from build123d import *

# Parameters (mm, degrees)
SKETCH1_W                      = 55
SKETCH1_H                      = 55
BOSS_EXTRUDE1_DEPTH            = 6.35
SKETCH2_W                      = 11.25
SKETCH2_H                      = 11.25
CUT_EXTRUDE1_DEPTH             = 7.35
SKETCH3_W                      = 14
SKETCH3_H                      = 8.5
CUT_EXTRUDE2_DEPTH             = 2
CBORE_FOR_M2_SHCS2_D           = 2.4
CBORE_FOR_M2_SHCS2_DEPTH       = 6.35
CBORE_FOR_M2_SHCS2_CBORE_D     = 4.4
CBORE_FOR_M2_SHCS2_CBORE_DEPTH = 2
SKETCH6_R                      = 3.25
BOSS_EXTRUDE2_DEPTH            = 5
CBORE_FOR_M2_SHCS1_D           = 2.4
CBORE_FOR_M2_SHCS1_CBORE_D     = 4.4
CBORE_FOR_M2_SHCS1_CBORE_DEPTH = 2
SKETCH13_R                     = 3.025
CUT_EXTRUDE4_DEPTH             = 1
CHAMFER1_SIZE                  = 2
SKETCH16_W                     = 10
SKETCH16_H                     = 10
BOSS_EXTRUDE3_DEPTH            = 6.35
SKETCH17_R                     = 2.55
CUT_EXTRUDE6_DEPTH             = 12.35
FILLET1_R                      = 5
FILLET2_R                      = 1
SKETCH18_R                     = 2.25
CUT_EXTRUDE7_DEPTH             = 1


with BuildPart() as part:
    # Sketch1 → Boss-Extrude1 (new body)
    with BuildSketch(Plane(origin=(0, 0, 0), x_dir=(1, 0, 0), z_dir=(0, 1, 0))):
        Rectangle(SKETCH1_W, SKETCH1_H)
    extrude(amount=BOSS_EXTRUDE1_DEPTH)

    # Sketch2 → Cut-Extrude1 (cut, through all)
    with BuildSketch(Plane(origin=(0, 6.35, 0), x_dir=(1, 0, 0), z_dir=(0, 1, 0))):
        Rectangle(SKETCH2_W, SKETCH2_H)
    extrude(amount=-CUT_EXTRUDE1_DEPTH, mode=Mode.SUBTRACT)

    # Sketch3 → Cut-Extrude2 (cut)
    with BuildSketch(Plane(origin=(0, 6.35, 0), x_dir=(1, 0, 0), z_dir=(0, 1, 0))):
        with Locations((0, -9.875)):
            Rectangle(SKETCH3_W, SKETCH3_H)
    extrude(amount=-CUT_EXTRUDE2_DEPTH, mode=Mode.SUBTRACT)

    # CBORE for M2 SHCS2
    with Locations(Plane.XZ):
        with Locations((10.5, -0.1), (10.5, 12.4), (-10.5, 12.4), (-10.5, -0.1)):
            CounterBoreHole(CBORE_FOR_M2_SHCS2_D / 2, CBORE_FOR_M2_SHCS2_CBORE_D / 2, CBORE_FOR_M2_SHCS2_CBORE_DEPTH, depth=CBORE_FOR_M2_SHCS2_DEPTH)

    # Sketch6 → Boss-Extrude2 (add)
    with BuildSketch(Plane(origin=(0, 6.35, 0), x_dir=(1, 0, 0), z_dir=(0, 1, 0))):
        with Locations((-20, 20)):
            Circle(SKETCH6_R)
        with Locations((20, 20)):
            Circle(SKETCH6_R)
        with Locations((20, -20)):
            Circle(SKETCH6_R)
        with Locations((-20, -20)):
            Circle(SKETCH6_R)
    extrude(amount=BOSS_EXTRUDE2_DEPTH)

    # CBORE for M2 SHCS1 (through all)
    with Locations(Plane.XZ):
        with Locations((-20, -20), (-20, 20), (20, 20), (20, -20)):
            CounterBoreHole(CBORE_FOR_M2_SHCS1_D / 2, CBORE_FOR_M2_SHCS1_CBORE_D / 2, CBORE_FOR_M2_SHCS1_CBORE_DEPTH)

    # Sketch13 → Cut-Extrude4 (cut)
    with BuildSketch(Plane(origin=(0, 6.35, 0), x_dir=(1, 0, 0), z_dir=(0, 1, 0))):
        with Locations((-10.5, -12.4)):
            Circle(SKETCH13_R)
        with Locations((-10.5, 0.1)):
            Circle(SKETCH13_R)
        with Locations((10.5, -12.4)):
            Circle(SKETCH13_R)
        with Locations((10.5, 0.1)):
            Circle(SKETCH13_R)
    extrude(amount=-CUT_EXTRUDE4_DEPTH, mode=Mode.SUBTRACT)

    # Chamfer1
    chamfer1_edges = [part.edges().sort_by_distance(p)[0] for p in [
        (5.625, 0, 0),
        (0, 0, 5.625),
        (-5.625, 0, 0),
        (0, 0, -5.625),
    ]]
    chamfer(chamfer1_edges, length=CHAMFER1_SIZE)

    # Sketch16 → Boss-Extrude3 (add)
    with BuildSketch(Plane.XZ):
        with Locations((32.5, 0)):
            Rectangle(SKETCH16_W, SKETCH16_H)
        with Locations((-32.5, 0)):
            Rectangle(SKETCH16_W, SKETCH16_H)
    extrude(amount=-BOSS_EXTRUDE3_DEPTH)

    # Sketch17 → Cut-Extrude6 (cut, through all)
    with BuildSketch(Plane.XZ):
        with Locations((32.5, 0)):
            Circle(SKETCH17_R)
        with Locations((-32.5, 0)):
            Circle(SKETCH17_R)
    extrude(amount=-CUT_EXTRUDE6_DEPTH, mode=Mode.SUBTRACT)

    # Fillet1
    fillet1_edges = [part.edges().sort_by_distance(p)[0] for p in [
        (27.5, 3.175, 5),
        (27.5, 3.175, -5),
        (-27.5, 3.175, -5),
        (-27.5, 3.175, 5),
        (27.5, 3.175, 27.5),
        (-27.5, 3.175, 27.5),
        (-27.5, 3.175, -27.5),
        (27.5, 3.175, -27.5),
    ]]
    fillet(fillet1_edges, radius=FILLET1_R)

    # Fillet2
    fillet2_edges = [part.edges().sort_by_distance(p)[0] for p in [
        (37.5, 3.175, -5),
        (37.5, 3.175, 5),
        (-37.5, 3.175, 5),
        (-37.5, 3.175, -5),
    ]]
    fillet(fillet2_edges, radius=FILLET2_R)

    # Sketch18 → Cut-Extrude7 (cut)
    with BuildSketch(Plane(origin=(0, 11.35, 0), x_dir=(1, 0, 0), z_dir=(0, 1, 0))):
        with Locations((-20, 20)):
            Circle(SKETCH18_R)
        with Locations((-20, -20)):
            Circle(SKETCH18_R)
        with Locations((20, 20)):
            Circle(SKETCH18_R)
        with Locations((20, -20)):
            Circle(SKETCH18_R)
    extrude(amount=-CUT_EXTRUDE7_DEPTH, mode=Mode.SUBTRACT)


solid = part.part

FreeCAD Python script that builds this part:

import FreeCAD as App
import Part
import Sketcher
from FreeCAD import Vector
Q = App.Units.Quantity


def edges_at(feature, points):
    """Names of the edges that pass closest to the given points."""
    edges = feature.Shape.Edges
    near = lambda p: min(range(len(edges)), key=lambda i: edges[i].distToShape(Part.Vertex(*p))[0])
    return sorted({f"Edge{near(p) + 1}" for p in points})

doc = App.newDocument("Part")
params = doc.addObject("Spreadsheet::Sheet", "Params")
for row, (alias, value) in enumerate([
    ("sketch1_width", "55 mm"),
    ("pad1_length", "6.35 mm"),
    ("sketch2_width", "11.25 mm"),
    ("sketch3_width", "14 mm"),
    ("sketch3_height", "8.5 mm"),
    ("pocket2_length", "2 mm"),
    ("sketch4_diameter", "2.4 mm"),
    ("hole_diameter", "2.4 mm"),
    ("hole_depth", "6.35 mm"),
    ("hole_cbore_diameter", "4.4 mm"),
    ("hole_cbore_depth", "2 mm"),
    ("sketch5_diameter", "6.5 mm"),
    ("pad2_length", "5 mm"),
    ("sketch6_diameter", "2.4 mm"),
    ("hole2_diameter", "2.4 mm"),
    ("hole2_cbore_diameter", "4.4 mm"),
    ("hole2_cbore_depth", "2 mm"),
    ("sketch7_diameter", "6.05 mm"),
    ("pocket3_length", "1 mm"),
    ("chamfer_size", "2 mm"),
    ("sketch8_width", "10 mm"),
    ("pad3_length", "6.35 mm"),
    ("sketch9_diameter", "5.1 mm"),
    ("fillet_radius", "5 mm"),
    ("fillet2_radius", "1 mm"),
    ("sketch10_diameter", "4.5 mm"),
    ("pocket5_length", "1 mm"),
], start=1):
    params.set(f"A{row}", alias)
    params.set(f"B{row}", "=" + value)
    params.setAlias(f"B{row}", alias)

body = doc.addObject("PartDesign::Body", "Body")

# Sketch on XZ plane
sketch1 = body.newObject("Sketcher::SketchObject", "Sketch")
sketch1.AttachmentSupport = (doc.getObject("XZ_Plane"), [""])
sketch1.MapMode = "FlatFace"
sketch1.addGeometry(Part.LineSegment(Vector(-27.5, -27.5, 0), Vector(-27.5, 27.5, 0)), False)
sketch1.addGeometry(Part.LineSegment(Vector(-27.5, 27.5, 0), Vector(27.5, 27.5, 0)), False)
sketch1.addGeometry(Part.LineSegment(Vector(27.5, 27.5, 0), Vector(27.5, -27.5, 0)), False)
sketch1.addGeometry(Part.LineSegment(Vector(27.5, -27.5, 0), Vector(-27.5, -27.5, 0)), False)
sketch1.addConstraint(Sketcher.Constraint("Coincident", 0, 2, 1, 1))
sketch1.addConstraint(Sketcher.Constraint("Coincident", 1, 2, 2, 1))
sketch1.addConstraint(Sketcher.Constraint("Coincident", 2, 2, 3, 1))
sketch1.addConstraint(Sketcher.Constraint("Coincident", 3, 2, 0, 1))
sketch1.addConstraint(Sketcher.Constraint("Vertical", 0))
sketch1.addConstraint(Sketcher.Constraint("Horizontal", 1))
sketch1.addConstraint(Sketcher.Constraint("Vertical", 2))
sketch1.addConstraint(Sketcher.Constraint("Horizontal", 3))
sketch1.addConstraint(Sketcher.Constraint("Symmetric", 0, 2, 2, 2, -1, 1))
sketch1.addConstraint(Sketcher.Constraint("Equal", 3, 0))
sketch1.addConstraint(Sketcher.Constraint("DistanceX", 1, 1, 1, 2, Q("55 mm")))
sketch1.setExpression("Constraints[10]", "Params.sketch1_width")
pad1 = body.newObject("PartDesign::Pad", "Pad")
pad1.Profile = sketch1
pad1.setExpression("Length", "Params.pad1_length")
pad1.Reversed = True

# Sketch on XZ plane
sketch2 = body.newObject("Sketcher::SketchObject", "Sketch001")
sketch2.AttachmentSupport = (doc.getObject("XZ_Plane"), [""])
sketch2.MapMode = "FlatFace"
sketch2.AttachmentOffset = App.Placement(Vector(0, 0, -6.35), App.Rotation())
sketch2.addGeometry(Part.LineSegment(Vector(-5.625, -5.625, 0), Vector(-5.625, 5.625, 0)), False)
sketch2.addGeometry(Part.LineSegment(Vector(-5.625, 5.625, 0), Vector(5.625, 5.625, 0)), False)
sketch2.addGeometry(Part.LineSegment(Vector(5.625, 5.625, 0), Vector(5.625, -5.625, 0)), False)
sketch2.addGeometry(Part.LineSegment(Vector(5.625, -5.625, 0), Vector(-5.625, -5.625, 0)), False)
sketch2.addConstraint(Sketcher.Constraint("Coincident", 0, 2, 1, 1))
sketch2.addConstraint(Sketcher.Constraint("Coincident", 1, 2, 2, 1))
sketch2.addConstraint(Sketcher.Constraint("Coincident", 2, 2, 3, 1))
sketch2.addConstraint(Sketcher.Constraint("Coincident", 3, 2, 0, 1))
sketch2.addConstraint(Sketcher.Constraint("Vertical", 0))
sketch2.addConstraint(Sketcher.Constraint("Horizontal", 1))
sketch2.addConstraint(Sketcher.Constraint("Vertical", 2))
sketch2.addConstraint(Sketcher.Constraint("Horizontal", 3))
sketch2.addConstraint(Sketcher.Constraint("Symmetric", 0, 2, 2, 2, -1, 1))
sketch2.addConstraint(Sketcher.Constraint("Equal", 3, 0))
sketch2.addConstraint(Sketcher.Constraint("DistanceX", 1, 1, 1, 2, Q("11.25 mm")))
sketch2.setExpression("Constraints[10]", "Params.sketch2_width")
pocket1 = body.newObject("PartDesign::Pocket", "Pocket")
pocket1.Profile = sketch2
pocket1.Type = "ThroughAll"
pocket1.Reversed = True

# Sketch on XZ plane
sketch3 = body.newObject("Sketcher::SketchObject", "Sketch002")
sketch3.AttachmentSupport = (doc.getObject("XZ_Plane"), [""])
sketch3.MapMode = "FlatFace"
sketch3.AttachmentOffset = App.Placement(Vector(0, 0, -6.35), App.Rotation())
sketch3.addGeometry(Part.LineSegment(Vector(-7, 5.625, 0), Vector(-7, 14.125, 0)), False)
sketch3.addGeometry(Part.LineSegment(Vector(-7, 14.125, 0), Vector(7, 14.125, 0)), False)
sketch3.addGeometry(Part.LineSegment(Vector(7, 14.125, 0), Vector(7, 5.625, 0)), False)
sketch3.addGeometry(Part.LineSegment(Vector(7, 5.625, 0), Vector(-7, 5.625, 0)), False)
sketch3.addConstraint(Sketcher.Constraint("Coincident", 0, 2, 1, 1))
sketch3.addConstraint(Sketcher.Constraint("Coincident", 1, 2, 2, 1))
sketch3.addConstraint(Sketcher.Constraint("Coincident", 2, 2, 3, 1))
sketch3.addConstraint(Sketcher.Constraint("Coincident", 3, 2, 0, 1))
sketch3.addConstraint(Sketcher.Constraint("Vertical", 0))
sketch3.addConstraint(Sketcher.Constraint("Horizontal", 1))
sketch3.addConstraint(Sketcher.Constraint("Vertical", 2))
sketch3.addConstraint(Sketcher.Constraint("Horizontal", 3))
sketch3.addConstraint(Sketcher.Constraint("DistanceX", 1, 1, 1, 2, Q("14 mm")))
sketch3.addConstraint(Sketcher.Constraint("DistanceY", 0, 1, 0, 2, Q("8.5 mm")))
sketch3.addConstraint(Sketcher.Constraint("DistanceX", 0, 2, -1, 1, Q("7 mm")))
sketch3.addConstraint(Sketcher.Constraint("DistanceY", -1, 1, 0, 2, Q("14.125 mm")))
sketch3.setExpression("Constraints[8]", "Params.sketch3_width")
sketch3.setExpression("Constraints[9]", "Params.sketch3_height")
pocket2 = body.newObject("PartDesign::Pocket", "Pocket001")
pocket2.Profile = sketch3
pocket2.setExpression("Length", "Params.pocket2_length")
pocket2.Reversed = True

# Sketch on XZ plane
sketch4 = body.newObject("Sketcher::SketchObject", "Sketch003")
sketch4.AttachmentSupport = (doc.getObject("XZ_Plane"), [""])
sketch4.MapMode = "FlatFace"
sketch4.addGeometry(Part.Circle(Vector(10.5, -0.1, 0), Vector(0, 0, 1), 1.2), False)
sketch4.addGeometry(Part.Circle(Vector(10.5, 12.4, 0), Vector(0, 0, 1), 1.2), False)
sketch4.addGeometry(Part.Circle(Vector(-10.5, 12.4, 0), Vector(0, 0, 1), 1.2), False)
sketch4.addGeometry(Part.Circle(Vector(-10.5, -0.1, 0), Vector(0, 0, 1), 1.2), False)
sketch4.addConstraint(Sketcher.Constraint("Equal", 0, 1))
sketch4.addConstraint(Sketcher.Constraint("Equal", 1, 2))
sketch4.addConstraint(Sketcher.Constraint("Equal", 2, 3))
sketch4.addConstraint(Sketcher.Constraint("Symmetric", 1, 3, 2, 3, -2))
sketch4.addConstraint(Sketcher.Constraint("Symmetric", 0, 3, 3, 3, -2))
sketch4.addConstraint(Sketcher.Constraint("Vertical", 0, 3, 1, 3))
sketch4.addConstraint(Sketcher.Constraint("Diameter", 0, Q("2.4 mm")))
sketch4.addConstraint(Sketcher.Constraint("DistanceX", 2, 3, 1, 3, Q("21 mm")))
sketch4.addConstraint(Sketcher.Constraint("DistanceY", 0, 3, -1, 1, Q("0.1 mm")))
sketch4.addConstraint(Sketcher.Constraint("DistanceY", -1, 1, 1, 3, Q("12.4 mm")))
sketch4.setExpression("Constraints[6]", "Params.sketch4_diameter")
doc.recompute()
hole = body.newObject("PartDesign::Hole", "Hole")
hole.Profile = sketch4
hole.ThreadType = "None"
hole.setExpression("Diameter", "Params.hole_diameter")
hole.DepthType = "Dimension"
hole.setExpression("Depth", "Params.hole_depth")
hole.DrillPoint = "Flat"
hole.HoleCutType = "Counterbore"
hole.setExpression("HoleCutDiameter", "Params.hole_cbore_diameter")
hole.setExpression("HoleCutDepth", "Params.hole_cbore_depth")

# Sketch on XZ plane
sketch5 = body.newObject("Sketcher::SketchObject", "Sketch004")
sketch5.AttachmentSupport = (doc.getObject("XZ_Plane"), [""])
sketch5.MapMode = "FlatFace"
sketch5.AttachmentOffset = App.Placement(Vector(0, 0, -6.35), App.Rotation())
sketch5.addGeometry(Part.Circle(Vector(-20, -20, 0), Vector(0, 0, 1), 3.25), False)
sketch5.addGeometry(Part.Circle(Vector(20, -20, 0), Vector(0, 0, 1), 3.25), False)
sketch5.addGeometry(Part.Circle(Vector(20, 20, 0), Vector(0, 0, 1), 3.25), False)
sketch5.addGeometry(Part.Circle(Vector(-20, 20, 0), Vector(0, 0, 1), 3.25), False)
sketch5.addConstraint(Sketcher.Constraint("Equal", 0, 1))
sketch5.addConstraint(Sketcher.Constraint("Equal", 1, 2))
sketch5.addConstraint(Sketcher.Constraint("Equal", 2, 3))
sketch5.addConstraint(Sketcher.Constraint("Symmetric", 0, 3, 2, 3, -1, 1))
sketch5.addConstraint(Sketcher.Constraint("Symmetric", 1, 3, 3, 3, -1, 1))
sketch5.addConstraint(Sketcher.Constraint("Symmetric", 0, 3, 1, 3, -2))
sketch5.addConstraint(Sketcher.Constraint("Diameter", 0, Q("6.5 mm")))
sketch5.addConstraint(Sketcher.Constraint("DistanceX", 0, 3, -1, 1, Q("20 mm")))
sketch5.addConstraint(Sketcher.Constraint("DistanceY", 0, 3, -1, 1, Q("20 mm")))
sketch5.setExpression("Constraints[6]", "Params.sketch5_diameter")
pad2 = body.newObject("PartDesign::Pad", "Pad001")
pad2.Profile = sketch5
pad2.setExpression("Length", "Params.pad2_length")
pad2.Reversed = True

# Sketch on XZ plane
sketch6 = body.newObject("Sketcher::SketchObject", "Sketch005")
sketch6.AttachmentSupport = (doc.getObject("XZ_Plane"), [""])
sketch6.MapMode = "FlatFace"
sketch6.addGeometry(Part.Circle(Vector(-20, -20, 0), Vector(0, 0, 1), 1.2), False)
sketch6.addGeometry(Part.Circle(Vector(-20, 20, 0), Vector(0, 0, 1), 1.2), False)
sketch6.addGeometry(Part.Circle(Vector(20, 20, 0), Vector(0, 0, 1), 1.2), False)
sketch6.addGeometry(Part.Circle(Vector(20, -20, 0), Vector(0, 0, 1), 1.2), False)
sketch6.addConstraint(Sketcher.Constraint("Equal", 0, 1))
sketch6.addConstraint(Sketcher.Constraint("Equal", 1, 2))
sketch6.addConstraint(Sketcher.Constraint("Equal", 2, 3))
sketch6.addConstraint(Sketcher.Constraint("Symmetric", 0, 3, 2, 3, -1, 1))
sketch6.addConstraint(Sketcher.Constraint("Symmetric", 1, 3, 3, 3, -1, 1))
sketch6.addConstraint(Sketcher.Constraint("Symmetric", 1, 3, 2, 3, -2))
sketch6.addConstraint(Sketcher.Constraint("Diameter", 0, Q("2.4 mm")))
sketch6.addConstraint(Sketcher.Constraint("DistanceX", 0, 3, -1, 1, Q("20 mm")))
sketch6.addConstraint(Sketcher.Constraint("DistanceY", 0, 3, -1, 1, Q("20 mm")))
sketch6.setExpression("Constraints[6]", "Params.sketch6_diameter")
doc.recompute()
hole2 = body.newObject("PartDesign::Hole", "Hole001")
hole2.Profile = sketch6
hole2.ThreadType = "None"
hole2.setExpression("Diameter", "Params.hole2_diameter")
hole2.DepthType = "ThroughAll"
hole2.HoleCutType = "Counterbore"
hole2.setExpression("HoleCutDiameter", "Params.hole2_cbore_diameter")
hole2.setExpression("HoleCutDepth", "Params.hole2_cbore_depth")

# Sketch on XZ plane
sketch7 = body.newObject("Sketcher::SketchObject", "Sketch006")
sketch7.AttachmentSupport = (doc.getObject("XZ_Plane"), [""])
sketch7.MapMode = "FlatFace"
sketch7.AttachmentOffset = App.Placement(Vector(0, 0, -6.35), App.Rotation())
sketch7.addGeometry(Part.Circle(Vector(-10.5, 12.4, 0), Vector(0, 0, 1), 3.025), False)
sketch7.addGeometry(Part.Circle(Vector(-10.5, -0.1, 0), Vector(0, 0, 1), 3.025), False)
sketch7.addGeometry(Part.Circle(Vector(10.5, 12.4, 0), Vector(0, 0, 1), 3.025), False)
sketch7.addGeometry(Part.Circle(Vector(10.5, -0.1, 0), Vector(0, 0, 1), 3.025), False)
sketch7.addConstraint(Sketcher.Constraint("Equal", 0, 1))
sketch7.addConstraint(Sketcher.Constraint("Equal", 1, 2))
sketch7.addConstraint(Sketcher.Constraint("Equal", 2, 3))
sketch7.addConstraint(Sketcher.Constraint("Symmetric", 0, 3, 2, 3, -2))
sketch7.addConstraint(Sketcher.Constraint("Symmetric", 1, 3, 3, 3, -2))
sketch7.addConstraint(Sketcher.Constraint("Vertical", 0, 3, 1, 3))
sketch7.addConstraint(Sketcher.Constraint("Diameter", 0, Q("6.05 mm")))
sketch7.addConstraint(Sketcher.Constraint("DistanceX", 0, 3, 2, 3, Q("21 mm")))
sketch7.addConstraint(Sketcher.Constraint("DistanceY", -1, 1, 0, 3, Q("12.4 mm")))
sketch7.addConstraint(Sketcher.Constraint("DistanceY", 1, 3, -1, 1, Q("0.1 mm")))
sketch7.setExpression("Constraints[6]", "Params.sketch7_diameter")
pocket3 = body.newObject("PartDesign::Pocket", "Pocket002")
pocket3.Profile = sketch7
pocket3.setExpression("Length", "Params.pocket3_length")
pocket3.Reversed = True
doc.recompute()

chamfer = body.newObject("PartDesign::Chamfer", "Chamfer")
chamfer.Base = (pocket3, edges_at(pocket3, [
    (5.625, 0, 0),
    (0, 0, 5.625),
    (-5.625, 0, 0),
    (0, 0, -5.625),
]))
chamfer.setExpression("Size", "Params.chamfer_size")

# Sketch on XZ plane
sketch8 = body.newObject("Sketcher::SketchObject", "Sketch007")
sketch8.AttachmentSupport = (doc.getObject("XZ_Plane"), [""])
sketch8.MapMode = "FlatFace"
sketch8.addGeometry(Part.LineSegment(Vector(27.5, 5, 0), Vector(27.5, -5, 0)), False)
sketch8.addGeometry(Part.LineSegment(Vector(27.5, -5, 0), Vector(37.5, -5, 0)), False)
sketch8.addGeometry(Part.LineSegment(Vector(37.5, -5, 0), Vector(37.5, 5, 0)), False)
sketch8.addGeometry(Part.LineSegment(Vector(37.5, 5, 0), Vector(27.5, 5, 0)), False)
sketch8.addGeometry(Part.LineSegment(Vector(-37.5, 5, 0), Vector(-37.5, -5, 0)), False)
sketch8.addGeometry(Part.LineSegment(Vector(-37.5, -5, 0), Vector(-27.5, -5, 0)), False)
sketch8.addGeometry(Part.LineSegment(Vector(-27.5, -5, 0), Vector(-27.5, 5, 0)), False)
sketch8.addGeometry(Part.LineSegment(Vector(-27.5, 5, 0), Vector(-37.5, 5, 0)), False)
sketch8.addConstraint(Sketcher.Constraint("Coincident", 0, 2, 1, 1))
sketch8.addConstraint(Sketcher.Constraint("Coincident", 1, 2, 2, 1))
sketch8.addConstraint(Sketcher.Constraint("Coincident", 2, 2, 3, 1))
sketch8.addConstraint(Sketcher.Constraint("Coincident", 3, 2, 0, 1))
sketch8.addConstraint(Sketcher.Constraint("Coincident", 4, 2, 5, 1))
sketch8.addConstraint(Sketcher.Constraint("Coincident", 5, 2, 6, 1))
sketch8.addConstraint(Sketcher.Constraint("Coincident", 6, 2, 7, 1))
sketch8.addConstraint(Sketcher.Constraint("Coincident", 7, 2, 4, 1))
sketch8.addConstraint(Sketcher.Constraint("Vertical", 0))
sketch8.addConstraint(Sketcher.Constraint("Horizontal", 1))
sketch8.addConstraint(Sketcher.Constraint("Vertical", 2))
sketch8.addConstraint(Sketcher.Constraint("Horizontal", 3))
sketch8.addConstraint(Sketcher.Constraint("Vertical", 4))
sketch8.addConstraint(Sketcher.Constraint("Horizontal", 5))
sketch8.addConstraint(Sketcher.Constraint("Vertical", 6))
sketch8.addConstraint(Sketcher.Constraint("Horizontal", 7))
sketch8.addConstraint(Sketcher.Constraint("Symmetric", 2, 2, 4, 2, -1, 1))
sketch8.addConstraint(Sketcher.Constraint("Symmetric", 0, 2, 6, 2, -1, 1))
sketch8.addConstraint(Sketcher.Constraint("Horizontal", 1, 2, 4, 2))
sketch8.addConstraint(Sketcher.Constraint("Equal", 7, 0))
sketch8.addConstraint(Sketcher.Constraint("DistanceX", 1, 1, 1, 2, Q("10 mm")))
sketch8.addConstraint(Sketcher.Constraint("DistanceX", 4, 2, 0, 2, Q("65 mm")))
sketch8.setExpression("Constraints[20]", "Params.sketch8_width")
pad3 = body.newObject("PartDesign::Pad", "Pad002")
pad3.Profile = sketch8
pad3.setExpression("Length", "Params.pad3_length")
pad3.Reversed = True

# Sketch on XZ plane
sketch9 = body.newObject("Sketcher::SketchObject", "Sketch008")
sketch9.AttachmentSupport = (doc.getObject("XZ_Plane"), [""])
sketch9.MapMode = "FlatFace"
sketch9.addGeometry(Part.Circle(Vector(32.5, 0, 0), Vector(0, 0, 1), 2.55), False)
sketch9.addGeometry(Part.Circle(Vector(-32.5, 0, 0), Vector(0, 0, 1), 2.55), False)
sketch9.addConstraint(Sketcher.Constraint("Equal", 0, 1))
sketch9.addConstraint(Sketcher.Constraint("Symmetric", 0, 3, 1, 3, -1, 1))
sketch9.addConstraint(Sketcher.Constraint("PointOnObject", 0, 3, -1))
sketch9.addConstraint(Sketcher.Constraint("Diameter", 0, Q("5.1 mm")))
sketch9.addConstraint(Sketcher.Constraint("DistanceX", 1, 3, 0, 3, Q("65 mm")))
sketch9.setExpression("Constraints[3]", "Params.sketch9_diameter")
pocket4 = body.newObject("PartDesign::Pocket", "Pocket003")
pocket4.Profile = sketch9
pocket4.Type = "ThroughAll"
doc.recompute()

fillet = body.newObject("PartDesign::Fillet", "Fillet")
fillet.Base = (pocket4, edges_at(pocket4, [
    (27.5, 3.175, 5),
    (27.5, 3.175, -5),
    (-27.5, 3.175, -5),
    (-27.5, 3.175, 5),
    (27.5, 3.175, 27.5),
    (-27.5, 3.175, 27.5),
    (-27.5, 3.175, -27.5),
    (27.5, 3.175, -27.5),
]))
fillet.setExpression("Radius", "Params.fillet_radius")
doc.recompute()

fillet2 = body.newObject("PartDesign::Fillet", "Fillet001")
fillet2.Base = (fillet, edges_at(fillet, [
    (37.5, 3.175, -5),
    (37.5, 3.175, 5),
    (-37.5, 3.175, 5),
    (-37.5, 3.175, -5),
]))
fillet2.setExpression("Radius", "Params.fillet2_radius")

# Sketch on XZ plane
sketch10 = body.newObject("Sketcher::SketchObject", "Sketch009")
sketch10.AttachmentSupport = (doc.getObject("XZ_Plane"), [""])
sketch10.MapMode = "FlatFace"
sketch10.AttachmentOffset = App.Placement(Vector(0, 0, -11.35), App.Rotation())
sketch10.addGeometry(Part.Circle(Vector(-20, -20, 0), Vector(0, 0, 1), 2.25), False)
sketch10.addGeometry(Part.Circle(Vector(-20, 20, 0), Vector(0, 0, 1), 2.25), False)
sketch10.addGeometry(Part.Circle(Vector(20, -20, 0), Vector(0, 0, 1), 2.25), False)
sketch10.addGeometry(Part.Circle(Vector(20, 20, 0), Vector(0, 0, 1), 2.25), False)
sketch10.addConstraint(Sketcher.Constraint("Equal", 0, 1))
sketch10.addConstraint(Sketcher.Constraint("Equal", 1, 2))
sketch10.addConstraint(Sketcher.Constraint("Equal", 2, 3))
sketch10.addConstraint(Sketcher.Constraint("Symmetric", 1, 3, 2, 3, -1, 1))
sketch10.addConstraint(Sketcher.Constraint("Symmetric", 0, 3, 3, 3, -1, 1))
sketch10.addConstraint(Sketcher.Constraint("Symmetric", 0, 3, 2, 3, -2))
sketch10.addConstraint(Sketcher.Constraint("Diameter", 0, Q("4.5 mm")))
sketch10.addConstraint(Sketcher.Constraint("DistanceX", 0, 3, -1, 1, Q("20 mm")))
sketch10.addConstraint(Sketcher.Constraint("DistanceY", 0, 3, -1, 1, Q("20 mm")))
sketch10.setExpression("Constraints[6]", "Params.sketch10_diameter")
pocket5 = body.newObject("PartDesign::Pocket", "Pocket004")
pocket5.Profile = sketch10
pocket5.setExpression("Length", "Params.pocket5_length")
pocket5.Reversed = True

doc.recompute()
